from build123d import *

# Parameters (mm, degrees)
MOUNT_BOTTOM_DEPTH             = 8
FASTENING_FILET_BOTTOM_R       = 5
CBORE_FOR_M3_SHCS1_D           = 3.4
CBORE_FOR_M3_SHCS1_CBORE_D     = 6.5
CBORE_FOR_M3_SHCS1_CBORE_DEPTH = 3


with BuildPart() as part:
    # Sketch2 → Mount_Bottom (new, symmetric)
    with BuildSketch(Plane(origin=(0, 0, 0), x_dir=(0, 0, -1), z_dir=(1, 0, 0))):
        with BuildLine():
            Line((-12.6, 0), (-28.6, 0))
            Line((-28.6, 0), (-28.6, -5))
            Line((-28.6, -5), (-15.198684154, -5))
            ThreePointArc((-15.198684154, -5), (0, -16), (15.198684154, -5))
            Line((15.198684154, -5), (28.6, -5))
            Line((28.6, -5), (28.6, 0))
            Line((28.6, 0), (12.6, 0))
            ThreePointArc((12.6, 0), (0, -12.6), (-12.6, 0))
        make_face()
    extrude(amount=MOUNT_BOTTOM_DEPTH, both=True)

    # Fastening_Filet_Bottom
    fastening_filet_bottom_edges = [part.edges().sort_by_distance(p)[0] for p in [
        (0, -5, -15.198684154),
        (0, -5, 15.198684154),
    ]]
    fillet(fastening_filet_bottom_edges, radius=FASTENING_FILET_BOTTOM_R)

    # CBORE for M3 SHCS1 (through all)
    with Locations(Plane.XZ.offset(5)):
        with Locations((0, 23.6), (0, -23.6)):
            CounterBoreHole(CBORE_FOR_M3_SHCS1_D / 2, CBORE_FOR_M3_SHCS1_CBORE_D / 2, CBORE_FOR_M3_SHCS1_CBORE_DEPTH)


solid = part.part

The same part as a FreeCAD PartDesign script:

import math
import FreeCAD as App
import Part
import Sketcher

V = App.Vector


def edges_at(feature, points):
    """Names of the edges that pass closest to the given points."""
    edges = feature.Shape.Edges
    near = lambda p: min(range(len(edges)), key=lambda i: edges[i].distToShape(Part.Vertex(*p))[0])
    return sorted({f"Edge{near(p) + 1}" for p in points})

doc = App.newDocument("Part")
params = doc.addObject("Spreadsheet::Sheet", "Params")
for row, (alias, value) in enumerate([
    ("sketch1_radius", "16 mm"),
    ("sketch1_radius2", "12.6 mm"),
    ("sketch1_width", "5 mm"),
    ("sketch1_height", "16 mm"),
    ("pad1_length", "16 mm"),
    ("fillet_radius", "5 mm"),
    ("sketch2_diameter", "3.4 mm"),
    ("hole_diameter", "3.4 mm"),
    ("hole_cbore_diameter", "6.5 mm"),
    ("hole_cbore_depth", "3 mm"),
], start=1):
    params.set(f"A{row}", alias)
    params.set(f"B{row}", "=" + value)
    params.setAlias(f"B{row}", alias)

body = doc.addObject("PartDesign::Body", "Body")

sketch1 = body.newObject("Sketcher::SketchObject", "Sketch")
sketch1.AttachmentSupport = (doc.getObject("YZ_Plane"), [""])
sketch1.MapMode = "FlatFace"
sketch1.addGeometry(Part.LineSegment(V(0, 12.6, 0), V(0, 28.6, 0)), False)
sketch1.addGeometry(Part.LineSegment(V(0, 28.6, 0), V(-5, 28.6, 0)), False)
sketch1.addGeometry(Part.LineSegment(V(-5, 28.6, 0), V(-5, 15.198684, 0)), False)
sketch1.addGeometry(Part.ArcOfCircle(Part.Circle(V(0, 0, 0), V(0, 0, 1), 16), math.radians(108.209957), math.radians(251.790043)), False)
sketch1.addGeometry(Part.LineSegment(V(-5, -15.198684, 0), V(-5, -28.6, 0)), False)
sketch1.addGeometry(Part.LineSegment(V(-5, -28.6, 0), V(0, -28.6, 0)), False)
sketch1.addGeometry(Part.LineSegment(V(0, -28.6, 0), V(0, -12.6, 0)), False)
sketch1.addGeometry(Part.ArcOfCircle(Part.Circle(V(0, 0, 0), V(0, 0, 1), 12.6), math.radians(90), math.radians(270)), False)
sketch1.addConstraint(Sketcher.Constraint("Coincident", 0, 2, 1, 1))
sketch1.addConstraint(Sketcher.Constraint("Coincident", 1, 2, 2, 1))
sketch1.addConstraint(Sketcher.Constraint("Coincident", 2, 2, 3, 1))
sketch1.addConstraint(Sketcher.Constraint("Coincident", 3, 2, 4, 1))
sketch1.addConstraint(Sketcher.Constraint("Coincident", 4, 2, 5, 1))
sketch1.addConstraint(Sketcher.Constraint("Coincident", 5, 2, 6, 1))
sketch1.addConstraint(Sketcher.Constraint("Coincident", 6, 2, 7, 2))
sketch1.addConstraint(Sketcher.Constraint("Coincident", 7, 1, 0, 1))
sketch1.addConstraint(Sketcher.Constraint("Vertical", 0))
sketch1.addConstraint(Sketcher.Constraint("Horizontal", 1))
sketch1.addConstraint(Sketcher.Constraint("Vertical", 2))
sketch1.addConstraint(Sketcher.Constraint("Vertical", 4))
sketch1.addConstraint(Sketcher.Constraint("Horizontal", 5))
sketch1.addConstraint(Sketcher.Constraint("Vertical", 6))
sketch1.addConstraint(Sketcher.Constraint("Coincident", 3, 3, -1, 1))
sketch1.addConstraint(Sketcher.Constraint("Coincident", 7, 3, -1, 1))
sketch1.addConstraint(Sketcher.Constraint("Symmetric", 0, 2, 5, 2, -1, 1))
sketch1.addConstraint(Sketcher.Constraint("PointOnObject", 0, 2, -2))
sketch1.addConstraint(Sketcher.Constraint("Vertical", 2, 2, 3, 2))
sketch1.addConstraint(Sketcher.Constraint("Radius", 3, 16.0))
sketch1.addConstraint(Sketcher.Constraint("Radius", 7, 12.6))
sketch1.addConstraint(Sketcher.Constraint("DistanceX", 1, 2, 1, 1, 5.0))
sketch1.addConstraint(Sketcher.Constraint("DistanceY", 0, 1, 0, 2, 16.0))
sketch1.setExpression("Constraints[19]", "Params.sketch1_radius")
sketch1.setExpression("Constraints[20]", "Params.sketch1_radius2")
sketch1.setExpression("Constraints[21]", "Params.sketch1_width")
sketch1.setExpression("Constraints[22]", "Params.sketch1_height")
pad1 = body.newObject("PartDesign::Pad", "Pad")
pad1.Profile = sketch1
pad1.setExpression("Length", "Params.pad1_length")
pad1.Midplane = True
doc.recompute()

fillet = body.newObject("PartDesign::Fillet", "Fillet")
fillet.Base = (pad1, edges_at(pad1, [(0, -5, -15.199), (0, -5, 15.199)]))
fillet.setExpression("Radius", "Params.fillet_radius")

sketch2 = body.newObject("Sketcher::SketchObject", "Sketch001")
sketch2.AttachmentSupport = (doc.getObject("XZ_Plane"), [""])
sketch2.MapMode = "FlatFace"
sketch2.AttachmentOffset = App.Placement(V(0, 0, 5), App.Rotation())
sketch2.addGeometry(Part.Circle(V(0, 23.6, 0), V(0, 0, 1), 1.7), False)
sketch2.addGeometry(Part.Circle(V(0, -23.6, 0), V(0, 0, 1), 1.7), False)
sketch2.addConstraint(Sketcher.Constraint("Equal", 0, 1))
sketch2.addConstraint(Sketcher.Constraint("Symmetric", 0, 3, 1, 3, -1, 1))
sketch2.addConstraint(Sketcher.Constraint("PointOnObject", 0, 3, -2))
sketch2.addConstraint(Sketcher.Constraint("Diameter", 0, 3.4))
sketch2.addConstraint(Sketcher.Constraint("DistanceY", -1, 1, 0, 3, 23.6))
sketch2.setExpression("Constraints[3]", "Params.sketch2_diameter")
doc.recompute()
hole = body.newObject("PartDesign::Hole", "Hole")
hole.Profile = sketch2
hole.ThreadType = "None"
hole.setExpression("Diameter", "Params.hole_diameter")
hole.DepthType = "ThroughAll"
hole.HoleCutType = "Counterbore"
hole.setExpression("HoleCutDiameter", "Params.hole_cbore_diameter")
hole.setExpression("HoleCutDepth", "Params.hole_cbore_depth")

doc.recompute()
